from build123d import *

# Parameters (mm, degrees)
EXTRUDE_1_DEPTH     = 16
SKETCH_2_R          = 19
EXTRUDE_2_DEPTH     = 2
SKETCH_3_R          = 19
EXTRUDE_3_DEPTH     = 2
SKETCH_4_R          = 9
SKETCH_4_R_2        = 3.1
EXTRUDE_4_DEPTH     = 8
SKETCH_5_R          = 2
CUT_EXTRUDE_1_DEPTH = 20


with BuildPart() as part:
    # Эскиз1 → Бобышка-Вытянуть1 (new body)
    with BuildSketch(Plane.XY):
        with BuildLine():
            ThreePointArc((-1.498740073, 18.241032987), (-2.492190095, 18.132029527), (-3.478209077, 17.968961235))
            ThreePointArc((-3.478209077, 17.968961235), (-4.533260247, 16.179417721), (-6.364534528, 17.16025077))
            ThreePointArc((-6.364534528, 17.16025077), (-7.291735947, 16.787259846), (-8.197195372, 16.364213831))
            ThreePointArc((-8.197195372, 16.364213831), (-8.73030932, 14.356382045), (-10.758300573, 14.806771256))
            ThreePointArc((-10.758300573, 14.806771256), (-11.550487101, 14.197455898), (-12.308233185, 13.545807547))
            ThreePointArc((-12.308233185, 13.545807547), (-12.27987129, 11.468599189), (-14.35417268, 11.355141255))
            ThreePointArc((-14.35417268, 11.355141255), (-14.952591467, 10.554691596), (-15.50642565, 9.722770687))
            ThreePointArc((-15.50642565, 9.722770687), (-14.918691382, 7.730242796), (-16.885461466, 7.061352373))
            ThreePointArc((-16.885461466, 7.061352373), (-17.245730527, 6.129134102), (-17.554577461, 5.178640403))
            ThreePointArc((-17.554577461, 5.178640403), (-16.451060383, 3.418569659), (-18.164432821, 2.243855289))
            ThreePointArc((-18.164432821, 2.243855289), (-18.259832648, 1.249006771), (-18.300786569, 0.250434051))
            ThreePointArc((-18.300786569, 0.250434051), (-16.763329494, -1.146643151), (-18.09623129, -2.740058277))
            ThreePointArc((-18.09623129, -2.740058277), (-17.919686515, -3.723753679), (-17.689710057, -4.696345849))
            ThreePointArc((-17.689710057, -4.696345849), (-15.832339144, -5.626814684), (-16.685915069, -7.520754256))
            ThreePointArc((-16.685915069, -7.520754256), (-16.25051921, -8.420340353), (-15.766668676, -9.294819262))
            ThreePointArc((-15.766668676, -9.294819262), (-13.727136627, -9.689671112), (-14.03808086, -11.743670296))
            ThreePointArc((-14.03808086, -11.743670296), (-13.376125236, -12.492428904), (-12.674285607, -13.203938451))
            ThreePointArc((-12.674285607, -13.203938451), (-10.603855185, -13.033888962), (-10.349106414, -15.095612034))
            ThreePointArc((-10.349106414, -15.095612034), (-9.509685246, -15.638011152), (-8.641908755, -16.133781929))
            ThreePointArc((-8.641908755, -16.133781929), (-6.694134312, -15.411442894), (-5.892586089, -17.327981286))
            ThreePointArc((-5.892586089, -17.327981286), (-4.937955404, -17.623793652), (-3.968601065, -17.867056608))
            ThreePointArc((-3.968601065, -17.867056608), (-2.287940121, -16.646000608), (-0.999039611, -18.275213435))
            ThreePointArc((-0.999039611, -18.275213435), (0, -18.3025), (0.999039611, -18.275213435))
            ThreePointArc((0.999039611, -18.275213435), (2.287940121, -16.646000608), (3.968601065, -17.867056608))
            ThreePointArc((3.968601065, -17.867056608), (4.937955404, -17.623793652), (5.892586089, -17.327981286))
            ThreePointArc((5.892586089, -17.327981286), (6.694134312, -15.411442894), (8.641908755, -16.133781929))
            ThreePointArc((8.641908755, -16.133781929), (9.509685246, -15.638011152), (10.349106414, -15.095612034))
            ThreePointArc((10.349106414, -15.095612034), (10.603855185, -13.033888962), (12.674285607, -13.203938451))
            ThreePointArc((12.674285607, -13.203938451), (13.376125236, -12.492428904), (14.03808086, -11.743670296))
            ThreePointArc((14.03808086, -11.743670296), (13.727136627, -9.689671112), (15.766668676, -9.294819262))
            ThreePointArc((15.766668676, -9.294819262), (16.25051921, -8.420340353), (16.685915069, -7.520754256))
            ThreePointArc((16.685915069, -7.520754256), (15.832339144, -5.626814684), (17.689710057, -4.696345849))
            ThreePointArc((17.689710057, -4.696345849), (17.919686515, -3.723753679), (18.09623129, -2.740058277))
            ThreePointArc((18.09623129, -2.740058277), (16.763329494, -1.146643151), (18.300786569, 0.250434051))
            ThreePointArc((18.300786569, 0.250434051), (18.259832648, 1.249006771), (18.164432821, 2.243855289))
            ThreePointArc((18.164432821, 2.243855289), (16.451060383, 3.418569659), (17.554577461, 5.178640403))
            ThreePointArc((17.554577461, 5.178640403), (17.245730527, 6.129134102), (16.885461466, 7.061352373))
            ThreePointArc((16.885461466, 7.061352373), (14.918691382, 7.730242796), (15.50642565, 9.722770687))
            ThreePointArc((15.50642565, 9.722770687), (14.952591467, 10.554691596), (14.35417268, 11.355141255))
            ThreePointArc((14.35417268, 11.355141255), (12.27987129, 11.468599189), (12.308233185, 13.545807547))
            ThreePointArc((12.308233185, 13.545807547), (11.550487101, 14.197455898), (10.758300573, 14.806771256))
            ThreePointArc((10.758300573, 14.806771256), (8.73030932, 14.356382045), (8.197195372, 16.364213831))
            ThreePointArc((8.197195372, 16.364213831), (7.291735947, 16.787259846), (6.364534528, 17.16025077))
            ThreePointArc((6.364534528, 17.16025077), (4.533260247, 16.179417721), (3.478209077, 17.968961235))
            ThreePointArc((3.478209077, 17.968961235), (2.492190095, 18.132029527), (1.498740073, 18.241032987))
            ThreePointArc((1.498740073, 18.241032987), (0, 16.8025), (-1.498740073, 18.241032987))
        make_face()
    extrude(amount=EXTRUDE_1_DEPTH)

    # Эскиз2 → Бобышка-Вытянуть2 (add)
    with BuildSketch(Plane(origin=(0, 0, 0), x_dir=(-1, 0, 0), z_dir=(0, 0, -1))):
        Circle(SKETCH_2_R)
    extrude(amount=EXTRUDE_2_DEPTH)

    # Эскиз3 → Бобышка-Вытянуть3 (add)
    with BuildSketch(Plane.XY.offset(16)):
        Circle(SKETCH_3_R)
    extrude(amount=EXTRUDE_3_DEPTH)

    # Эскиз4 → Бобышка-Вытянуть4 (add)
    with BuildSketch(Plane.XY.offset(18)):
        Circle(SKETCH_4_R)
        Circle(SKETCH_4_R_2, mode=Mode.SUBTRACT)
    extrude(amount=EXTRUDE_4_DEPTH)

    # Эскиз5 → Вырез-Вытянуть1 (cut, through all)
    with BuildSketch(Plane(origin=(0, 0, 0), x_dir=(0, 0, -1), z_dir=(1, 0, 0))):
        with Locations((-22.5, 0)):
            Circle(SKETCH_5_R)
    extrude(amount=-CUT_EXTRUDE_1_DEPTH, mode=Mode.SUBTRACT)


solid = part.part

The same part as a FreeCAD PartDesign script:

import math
import FreeCAD as App
import Part
import Sketcher
Q = App.Units.Quantity

doc = App.newDocument("Part")
params = doc.addObject("Spreadsheet::Sheet", "Params")
for row, (alias, value) in enumerate([
    ("sketch1_radius", "1.5 mm"),
    ("pad1_length", "16 mm"),
    ("sketch2_diameter", "38 mm"),
    ("pad2_length", "2 mm"),
    ("sketch3_diameter", "38 mm"),
    ("pad3_length", "2 mm"),
    ("sketch4_diameter", "18 mm"),
    ("sketch4_diameter2", "6.2 mm"),
    ("pad4_length", "8 mm"),
    ("sketch5_diameter", "4 mm"),
], start=1):
    params.set(f"A{row}", alias)
    params.set(f"B{row}", "=" + value)
    params.setAlias(f"B{row}", alias)

body = doc.addObject("PartDesign::Body", "Body")

# Sketch on XY plane
sketch1 = doc.addObject("Sketcher::SketchObject", "Sketch")
body.addObject(sketch1)
sketch1.AttachmentSupport = (doc.XY_Plane, [""])
sketch1.MapMode = "FlatFace"
sketch1.addGeometry([
    Part.ArcOfCircle(Part.Circle(App.Vector(0, 0, 0), App.Vector(0, 0, 1), 18.3), math.radians(94.7), math.radians(100.96)),  # 0
    Part.ArcOfCircle(Part.Circle(App.Vector(-4.9, 17.6, 0), App.Vector(0, 0, 1), 1.5), math.radians(-162), math.radians(13)),  # 1
    Part.ArcOfCircle(Part.Circle(App.Vector(0, 0, 0), App.Vector(0, 0, 1), 18.3), math.radians(110.35), math.radians(116.61)),  # 2
    Part.ArcOfCircle(Part.Circle(App.Vector(-9.5, 15.6, 0), App.Vector(0, 0, 1), 1.5), math.radians(-146), math.radians(29)),  # 3
    Part.ArcOfCircle(Part.Circle(App.Vector(0, 0, 0), App.Vector(0, 0, 1), 18.3), math.radians(126), math.radians(132.26)),  # 4
    Part.ArcOfCircle(Part.Circle(App.Vector(-13.4, 12.5, 0), App.Vector(0, 0, 1), 1.5), math.radians(-131), math.radians(45)),  # 5
    Part.ArcOfCircle(Part.Circle(App.Vector(0, 0, 0), App.Vector(0, 0, 1), 18.3), math.radians(141.65), math.radians(147.91)),  # 6
    Part.ArcOfCircle(Part.Circle(App.Vector(-16.3, 8.4, 0), App.Vector(0, 0, 1), 1.5), math.radians(-115), math.radians(60)),  # 7
    Part.ArcOfCircle(Part.Circle(App.Vector(0, 0, 0), App.Vector(0, 0, 1), 18.3), math.radians(157.31), math.radians(163.56)),  # 8
    Part.ArcOfCircle(Part.Circle(App.Vector(-17.9, 3.7, 0), App.Vector(0, 0, 1), 1.5), math.radians(-99), math.radians(76)),  # 9
    Part.ArcOfCircle(Part.Circle(App.Vector(0, 0, 0), App.Vector(0, 0, 1), 18.3), math.radians(172.96), math.radians(179.22)),  # 10
    Part.ArcOfCircle(Part.Circle(App.Vector(-18.3, -1.2, 0), App.Vector(0, 0, 1), 1.5), math.radians(-84), math.radians(92)),  # 11
    Part.ArcOfCircle(Part.Circle(App.Vector(0, 0, 0), App.Vector(0, 0, 1), 18.3), math.radians(-171.39), math.radians(-165.13)),  # 12
    Part.ArcOfCircle(Part.Circle(App.Vector(-17.2, -6.1, 0), App.Vector(0, 0, 1), 1.5), math.radians(-68), math.radians(107)),  # 13
    Part.ArcOfCircle(Part.Circle(App.Vector(0, 0, 0), App.Vector(0, 0, 1), 18.3), math.radians(-155.74), math.radians(-149.48)),  # 14
    Part.ArcOfCircle(Part.Circle(App.Vector(-15, -10.6, 0), App.Vector(0, 0, 1), 1.5), math.radians(-52), math.radians(123)),  # 15
    Part.ArcOfCircle(Part.Circle(App.Vector(0, 0, 0), App.Vector(0, 0, 1), 18.3), math.radians(-140.09), math.radians(-133.83)),  # 16
    Part.ArcOfCircle(Part.Circle(App.Vector(-11.6, -14.2, 0), App.Vector(0, 0, 1), 1.5), math.radians(-37), math.radians(139)),  # 17
    Part.ArcOfCircle(Part.Circle(App.Vector(0, 0, 0), App.Vector(0, 0, 1), 18.3), math.radians(-124.43), math.radians(-118.18)),  # 18
    Part.ArcOfCircle(Part.Circle(App.Vector(-7.3, -16.8, 0), App.Vector(0, 0, 1), 1.5), math.radians(-21), math.radians(154)),  # 19
    Part.ArcOfCircle(Part.Circle(App.Vector(0, 0, 0), App.Vector(0, 0, 1), 18.3), math.radians(-108.78), math.radians(-102.52)),  # 20
    Part.ArcOfCircle(Part.Circle(App.Vector(-2.5, -18.1, 0), App.Vector(0, 0, 1), 1.5), math.radians(-5), math.radians(170)),  # 21
    Part.ArcOfCircle(Part.Circle(App.Vector(0, 0, 0), App.Vector(0, 0, 1), 18.3), math.radians(-93.13), math.radians(-86.87)),  # 22
    Part.ArcOfCircle(Part.Circle(App.Vector(2.5, -18.1, 0), App.Vector(0, 0, 1), 1.5), math.radians(10), math.radians(185)),  # 23
    Part.ArcOfCircle(Part.Circle(App.Vector(0, 0, 0), App.Vector(0, 0, 1), 18.3), math.radians(-77.48), math.radians(-71.22)),  # 24
    Part.ArcOfCircle(Part.Circle(App.Vector(7.3, -16.8, 0), App.Vector(0, 0, 1), 1.5), math.radians(26), math.radians(201)),  # 25
    Part.ArcOfCircle(Part.Circle(App.Vector(0, 0, 0), App.Vector(0, 0, 1), 18.3), math.radians(-61.82), math.radians(-55.57)),  # 26
    Part.ArcOfCircle(Part.Circle(App.Vector(11.6, -14.2, 0), App.Vector(0, 0, 1), 1.5), math.radians(41), math.radians(217)),  # 27
    Part.ArcOfCircle(Part.Circle(App.Vector(0, 0, 0), App.Vector(0, 0, 1), 18.3), math.radians(-46.17), math.radians(-39.91)),  # 28
    Part.ArcOfCircle(Part.Circle(App.Vector(15, -10.6, 0), App.Vector(0, 0, 1), 1.5), math.radians(57), math.radians(232)),  # 29
    Part.ArcOfCircle(Part.Circle(App.Vector(0, 0, 0), App.Vector(0, 0, 1), 18.3), math.radians(-30.52), math.radians(-24.26)),  # 30
    Part.ArcOfCircle(Part.Circle(App.Vector(17.2, -6.1, 0), App.Vector(0, 0, 1), 1.5), math.radians(73), math.radians(248)),  # 31
    Part.ArcOfCircle(Part.Circle(App.Vector(0, 0, 0), App.Vector(0, 0, 1), 18.3), math.radians(-14.87), math.radians(-8.61)),  # 32
    Part.ArcOfCircle(Part.Circle(App.Vector(18.3, -1.2, 0), App.Vector(0, 0, 1), 1.5), math.radians(88), math.radians(264)),  # 33
    Part.ArcOfCircle(Part.Circle(App.Vector(0, 0, 0), App.Vector(0, 0, 1), 18.3), math.radians(0.78), math.radians(7.04)),  # 34
    Part.ArcOfCircle(Part.Circle(App.Vector(17.9, 3.7, 0), App.Vector(0, 0, 1), 1.5), math.radians(104), math.radians(279)),  # 35
    Part.ArcOfCircle(Part.Circle(App.Vector(0, 0, 0), App.Vector(0, 0, 1), 18.3), math.radians(16.44), math.radians(22.69)),  # 36
    Part.ArcOfCircle(Part.Circle(App.Vector(16.3, 8.4, 0), App.Vector(0, 0, 1), 1.5), math.radians(120), math.radians(295)),  # 37
    Part.ArcOfCircle(Part.Circle(App.Vector(0, 0, 0), App.Vector(0, 0, 1), 18.3), math.radians(32.09), math.radians(38.35)),  # 38
    Part.ArcOfCircle(Part.Circle(App.Vector(13.4, 12.5, 0), App.Vector(0, 0, 1), 1.5), math.radians(135), math.radians(311)),  # 39
    Part.ArcOfCircle(Part.Circle(App.Vector(0, 0, 0), App.Vector(0, 0, 1), 18.3), math.radians(47.74), math.radians(54)),  # 40
    Part.ArcOfCircle(Part.Circle(App.Vector(9.5, 15.6, 0), App.Vector(0, 0, 1), 1.5), math.radians(151), math.radians(326)),  # 41
    Part.ArcOfCircle(Part.Circle(App.Vector(0, 0, 0), App.Vector(0, 0, 1), 18.3), math.radians(63.39), math.radians(69.65)),  # 42
    Part.ArcOfCircle(Part.Circle(App.Vector(4.9, 17.6, 0), App.Vector(0, 0, 1), 1.5), math.radians(167), math.radians(342)),  # 43
    Part.ArcOfCircle(Part.Circle(App.Vector(0, 0, 0), App.Vector(0, 0, 1), 18.3), math.radians(79.04), math.radians(85.3)),  # 44
    Part.ArcOfCircle(Part.Circle(App.Vector(0, 18.3, 0), App.Vector(0, 0, 1), 1.5), math.radians(-178), math.radians(-2)),  # 45
], False)
sketch1.addConstraint([
    Sketcher.Constraint("Coincident", 0, 2, 1, 2),
    Sketcher.Constraint("Coincident", 1, 1, 2, 1),
    Sketcher.Constraint("Coincident", 2, 2, 3, 2),
    Sketcher.Constraint("Coincident", 3, 1, 4, 1),
    Sketcher.Constraint("Coincident", 4, 2, 5, 2),
    Sketcher.Constraint("Coincident", 5, 1, 6, 1),
    Sketcher.Constraint("Coincident", 6, 2, 7, 2),
    Sketcher.Constraint("Coincident", 7, 1, 8, 1),
    Sketcher.Constraint("Coincident", 8, 2, 9, 2),
    Sketcher.Constraint("Coincident", 9, 1, 10, 1),
    Sketcher.Constraint("Coincident", 10, 2, 11, 2),
    Sketcher.Constraint("Coincident", 11, 1, 12, 1),
    Sketcher.Constraint("Coincident", 12, 2, 13, 2),
    Sketcher.Constraint("Coincident", 13, 1, 14, 1),
    Sketcher.Constraint("Coincident", 14, 2, 15, 2),
    Sketcher.Constraint("Coincident", 15, 1, 16, 1),
    Sketcher.Constraint("Coincident", 16, 2, 17, 2),
    Sketcher.Constraint("Coincident", 17, 1, 18, 1),
    Sketcher.Constraint("Coincident", 18, 2, 19, 2),
    Sketcher.Constraint("Coincident", 19, 1, 20, 1),
    Sketcher.Constraint("Coincident", 20, 2, 21, 2),
    Sketcher.Constraint("Coincident", 21, 1, 22, 1),
    Sketcher.Constraint("Coincident", 22, 2, 23, 2),
    Sketcher.Constraint("Coincident", 23, 1, 24, 1),
    Sketcher.Constraint("Coincident", 24, 2, 25, 2),
    Sketcher.Constraint("Coincident", 25, 1, 26, 1),
    Sketcher.Constraint("Coincident", 26, 2, 27, 2),
    Sketcher.Constraint("Coincident", 27, 1, 28, 1),
    Sketcher.Constraint("Coincident", 28, 2, 29, 2),
    Sketcher.Constraint("Coincident", 29, 1, 30, 1),
    Sketcher.Constraint("Coincident", 30, 2, 31, 2),
    Sketcher.Constraint("Coincident", 31, 1, 32, 1),
    Sketcher.Constraint("Coincident", 32, 2, 33, 2),
    Sketcher.Constraint("Coincident", 33, 1, 34, 1),
    Sketcher.Constraint("Coincident", 34, 2, 35, 2),
    Sketcher.Constraint("Coincident", 35, 1, 36, 1),
    Sketcher.Constraint("Coincident", 36, 2, 37, 2),
    Sketcher.Constraint("Coincident", 37, 1, 38, 1),
    Sketcher.Constraint("Coincident", 38, 2, 39, 2),
    Sketcher.Constraint("Coincident", 39, 1, 40, 1),
    Sketcher.Constraint("Coincident", 40, 2, 41, 2),
    Sketcher.Constraint("Coincident", 41, 1, 42, 1),
    Sketcher.Constraint("Coincident", 42, 2, 43, 2),
    Sketcher.Constraint("Coincident", 43, 1, 44, 1),
    Sketcher.Constraint("Coincident", 44, 2, 45, 2),
    Sketcher.Constraint("Coincident", 45, 1, 0, 1),
    Sketcher.Constraint("Coincident", 0, 3, -1, 1),
    Sketcher.Constraint("Coincident", 2, 3, -1, 1),
    Sketcher.Constraint("Coincident", 4, 3, -1, 1),
    Sketcher.Constraint("Coincident", 6, 3, -1, 1),
    Sketcher.Constraint("Coincident", 8, 3, -1, 1),
    Sketcher.Constraint("Coincident", 10, 3, -1, 1),
    Sketcher.Constraint("Coincident", 12, 3, -1, 1),
    Sketcher.Constraint("Coincident", 14, 3, -1, 1),
    Sketcher.Constraint("Coincident", 16, 3, -1, 1),
    Sketcher.Constraint("Coincident", 18, 3, -1, 1),
    Sketcher.Constraint("Coincident", 20, 3, -1, 1),
    Sketcher.Constraint("Coincident", 22, 3, -1, 1),
    Sketcher.Constraint("Coincident", 24, 3, -1, 1),
    Sketcher.Constraint("Coincident", 26, 3, -1, 1),
    Sketcher.Constraint("Coincident", 28, 3, -1, 1),
    Sketcher.Constraint("Coincident", 30, 3, -1, 1),
    Sketcher.Constraint("Coincident", 32, 3, -1, 1),
    Sketcher.Constraint("Coincident", 34, 3, -1, 1),
    Sketcher.Constraint("Coincident", 36, 3, -1, 1),
    Sketcher.Constraint("Coincident", 38, 3, -1, 1),
    Sketcher.Constraint("Coincident", 40, 3, -1, 1),
    Sketcher.Constraint("Coincident", 42, 3, -1, 1),
    Sketcher.Constraint("Coincident", 44, 3, -1, 1),
    Sketcher.Constraint("Equal", 0, 2),
    Sketcher.Constraint("Equal", 1, 3),
    Sketcher.Constraint("Equal", 2, 4),
    Sketcher.Constraint("Equal", 3, 5),
    Sketcher.Constraint("Equal", 4, 6),
    Sketcher.Constraint("Equal", 5, 7),
    Sketcher.Constraint("Equal", 6, 8),
    Sketcher.Constraint("Equal", 7, 9),
    Sketcher.Constraint("Equal", 8, 10),
    Sketcher.Constraint("Equal", 9, 11),
    Sketcher.Constraint("Equal", 10, 12),
    Sketcher.Constraint("Equal", 11, 13),
    Sketcher.Constraint("Equal", 12, 14),
    Sketcher.Constraint("Equal", 13, 15),
    Sketcher.Constraint("Equal", 14, 16),
    Sketcher.Constraint("Equal", 15, 17),
    Sketcher.Constraint("Equal", 16, 18),
    Sketcher.Constraint("Equal", 17, 19),
    Sketcher.Constraint("Equal", 18, 20),
    Sketcher.Constraint("Equal", 19, 21),
    Sketcher.Constraint("Equal", 20, 22),
    Sketcher.Constraint("Equal", 21, 23),
    Sketcher.Constraint("Equal", 22, 24),
    Sketcher.Constraint("Equal", 23, 25),
    Sketcher.Constraint("Equal", 24, 26),
    Sketcher.Constraint("Equal", 25, 27),
    Sketcher.Constraint("Equal", 26, 28),
    Sketcher.Constraint("Equal", 27, 29),
    Sketcher.Constraint("Equal", 28, 30),
    Sketcher.Constraint("Equal", 29, 31),
    Sketcher.Constraint("Equal", 30, 32),
    Sketcher.Constraint("Equal", 31, 33),
    Sketcher.Constraint("Equal", 32, 34),
    Sketcher.Constraint("Equal", 33, 35),
    Sketcher.Constraint("Equal", 34, 36),
    Sketcher.Constraint("Equal", 35, 37),
    Sketcher.Constraint("Equal", 36, 38),
    Sketcher.Constraint("Equal", 37, 39),
    Sketcher.Constraint("Equal", 38, 40),
    Sketcher.Constraint("Equal", 39, 41),
    Sketcher.Constraint("Equal", 40, 42),
    Sketcher.Constraint("Equal", 41, 43),
    Sketcher.Constraint("Equal", 42, 44),
    Sketcher.Constraint("Equal", 43, 45),
    Sketcher.Constraint("Symmetric", 21, 3, 23, 3, -2),
    Sketcher.Constraint("Symmetric", 19, 3, 25, 3, -2),
    Sketcher.Constraint("Symmetric", 17, 3, 27, 3, -2),
    Sketcher.Constraint("Symmetric", 15, 3, 29, 3, -2),
    Sketcher.Constraint("Symmetric", 13, 3, 31, 3, -2),
    Sketcher.Constraint("Symmetric", 11, 3, 33, 3, -2),
    Sketcher.Constraint("Symmetric", 9, 3, 35, 3, -2),
    Sketcher.Constraint("Symmetric", 7, 3, 37, 3, -2),
    Sketcher.Constraint("Symmetric", 5, 3, 39, 3, -2),
    Sketcher.Constraint("Symmetric", 3, 3, 41, 3, -2),
    Sketcher.Constraint("Symmetric", 1, 3, 43, 3, -2),
    Sketcher.Constraint("PointOnObject", 45, 3, -2),
    Sketcher.Constraint("Radius", 1, Q("1.5 mm")),
    Sketcher.Constraint("Radius", 0, Q("18.3025 mm")),
    Sketcher.Constraint("DistanceY", -1, 1, 45, 3, Q("18.3025 mm")),
    Sketcher.Constraint("DistanceX", 3, 1, -1, 1, Q("10.758301 mm")),
    Sketcher.Constraint("DistanceX", 20, 2, -1, 1, Q("3.968601 mm")),
    Sketcher.Constraint("DistanceY", -1, 1, 3, 3, Q("15.638011 mm")),
    Sketcher.Constraint("DistanceY", -1, 1, 5, 3, Q("12.492429 mm")),
    Sketcher.Constraint("DistanceX", 7, 3, -1, 1, Q("16.250519 mm")),
    Sketcher.Constraint("DistanceY", -1, 1, 7, 3, Q("8.42034 mm")),
    Sketcher.Constraint("DistanceX", 13, 3, -1, 1, Q("17.245731 mm")),
    Sketcher.Constraint("DistanceX", 15, 3, -1, 1, Q("14.952591 mm")),
    Sketcher.Constraint("DistanceY", 15, 3, -1, 1, Q("10.554692 mm")),
    Sketcher.Constraint("DistanceY", 19, 3, -1, 1, Q("16.78726 mm")),
    Sketcher.Constraint("DistanceX", 21, 3, -1, 1, Q("2.49219 mm")),
    Sketcher.Constraint("DistanceX", 0, 2, -1, 1, Q("3.478209 mm")),
    Sketcher.Constraint("DistanceY", -1, 1, 1, 1, Q("17.160251 mm")),
    Sketcher.Constraint("DistanceY", -1, 1, 5, 1, Q("11.355141 mm")),
    Sketcher.Constraint("DistanceY", -1, 1, 8, 2, Q("5.17864 mm")),
    Sketcher.Constraint("DistanceX", 11, 1, -1, 1, Q("18.096231 mm")),
    Sketcher.Constraint("DistanceX", 12, 2, -1, 1, Q("17.68971 mm")),
    Sketcher.Constraint("DistanceY", 16, 2, -1, 1, Q("13.203938 mm")),
    Sketcher.Constraint("DistanceX", 18, 2, -1, 1, Q("8.641909 mm")),
    Sketcher.Constraint("DistanceX", 9, 3, -1, 1, Q("17.919687 mm")),
    Sketcher.Constraint("DistanceX", 11, 3, -1, 1, Q("18.259833 mm")),
    Sketcher.Constraint("DistanceX", 17, 3, -1, 1, Q("11.550487 mm")),
])
sketch1.setExpression("Constraints[125]", "Params.sketch1_radius")
pad1 = doc.addObject("PartDesign::Pad", "Pad")
body.addObject(pad1)
pad1.Profile = sketch1
pad1.setExpression("Length", "Params.pad1_length")

# Sketch on XY plane
sketch2 = doc.addObject("Sketcher::SketchObject", "Sketch001")
body.addObject(sketch2)
sketch2.AttachmentSupport = (doc.XY_Plane, [""])
sketch2.MapMode = "FlatFace"
sketch2.addGeometry(Part.Circle(App.Vector(0, 0, 0), App.Vector(0, 0, 1), 19), False)
sketch2.addConstraint([
    Sketcher.Constraint("Coincident", 0, 3, -1, 1),
    Sketcher.Constraint("Diameter", 0, Q("38 mm")),
])
sketch2.setExpression("Constraints[1]", "Params.sketch2_diameter")
pad2 = doc.addObject("PartDesign::Pad", "Pad001")
body.addObject(pad2)
pad2.Profile = sketch2
pad2.setExpression("Length", "Params.pad2_length")
pad2.Reversed = True

# Sketch on XY plane
sketch3 = doc.addObject("Sketcher::SketchObject", "Sketch002")
body.addObject(sketch3)
sketch3.AttachmentSupport = (doc.XY_Plane, [""])
sketch3.MapMode = "FlatFace"
sketch3.AttachmentOffset = App.Placement(App.Vector(0, 0, 16), App.Rotation())
sketch3.addGeometry(Part.Circle(App.Vector(0, 0, 0), App.Vector(0, 0, 1), 19), False)
sketch3.addConstraint([
    Sketcher.Constraint("Coincident", 0, 3, -1, 1),
    Sketcher.Constraint("Diameter", 0, Q("38 mm")),
])
sketch3.setExpression("Constraints[1]", "Params.sketch3_diameter")
pad3 = doc.addObject("PartDesign::Pad", "Pad002")
body.addObject(pad3)
pad3.Profile = sketch3
pad3.setExpression("Length", "Params.pad3_length")

# Sketch on XY plane
sketch4 = doc.addObject("Sketcher::SketchObject", "Sketch003")
body.addObject(sketch4)
sketch4.AttachmentSupport = (doc.XY_Plane, [""])
sketch4.MapMode = "FlatFace"
sketch4.AttachmentOffset = App.Placement(App.Vector(0, 0, 18), App.Rotation())
sketch4.addGeometry([
    Part.Circle(App.Vector(0, 0, 0), App.Vector(0, 0, 1), 9),
    Part.Circle(App.Vector(0, 0, 0), App.Vector(0, 0, 1), 3.1),
], False)
sketch4.addConstraint([
    Sketcher.Constraint("Coincident", 0, 3, -1, 1),
    Sketcher.Constraint("Coincident", 1, 3, -1, 1),
    Sketcher.Constraint("Diameter", 0, Q("18 mm")),
    Sketcher.Constraint("Diameter", 1, Q("6.2 mm")),
])
sketch4.setExpression("Constraints[2]", "Params.sketch4_diameter")
sketch4.setExpression("Constraints[3]", "Params.sketch4_diameter2")
pad4 = doc.addObject("PartDesign::Pad", "Pad003")
body.addObject(pad4)
pad4.Profile = sketch4
pad4.setExpression("Length", "Params.pad4_length")

# Sketch on YZ plane
sketch5 = doc.addObject("Sketcher::SketchObject", "Sketch004")
body.addObject(sketch5)
sketch5.AttachmentSupport = (doc.YZ_Plane, [""])
sketch5.MapMode = "FlatFace"
sketch5.addGeometry(Part.Circle(App.Vector(0, 22.5, 0), App.Vector(0, 0, 1), 2), False)
sketch5.addConstraint([
    Sketcher.Constraint("PointOnObject", 0, 3, -2),
    Sketcher.Constraint("Diameter", 0, Q("4 mm")),
    Sketcher.Constraint("DistanceY", -1, 1, 0, 3, Q("22.5 mm")),
])
sketch5.setExpression("Constraints[1]", "Params.sketch5_diameter")
pocket1 = doc.addObject("PartDesign::Pocket", "Pocket")
body.addObject(pocket1)
pocket1.Profile = sketch5
pocket1.Type = "ThroughAll"

doc.recompute()
